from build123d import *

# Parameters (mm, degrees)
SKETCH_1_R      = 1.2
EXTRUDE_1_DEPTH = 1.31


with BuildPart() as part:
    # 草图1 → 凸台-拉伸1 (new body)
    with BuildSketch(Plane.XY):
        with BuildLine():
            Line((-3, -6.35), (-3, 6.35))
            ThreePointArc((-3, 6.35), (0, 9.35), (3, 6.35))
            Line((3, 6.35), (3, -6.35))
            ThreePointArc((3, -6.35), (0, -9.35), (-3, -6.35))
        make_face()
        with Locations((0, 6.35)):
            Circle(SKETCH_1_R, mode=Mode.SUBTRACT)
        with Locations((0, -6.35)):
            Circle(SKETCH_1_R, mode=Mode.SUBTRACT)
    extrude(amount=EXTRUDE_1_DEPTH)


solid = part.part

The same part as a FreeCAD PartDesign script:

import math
import FreeCAD as App
import Part
import Sketcher

V = App.Vector

doc = App.newDocument("Part")
body = doc.addObject("PartDesign::Body", "Body")

# Sketch on XY plane
sketch1 = body.newObject("Sketcher::SketchObject", "Sketch")
sketch1.AttachmentSupport = (doc.getObject("XY_Plane"), [""])
sketch1.MapMode = "FlatFace"
sketch1.addGeometry(Part.LineSegment(V(-3, 6.3, 0), V(-3, -6.3, 0)), False)
sketch1.addGeometry(Part.ArcOfCircle(Part.Circle(V(0, -6.3, 0), V(0, 0, 1), 3), math.radians(180), math.radians(360)), False)
sketch1.addGeometry(Part.LineSegment(V(3, -6.3, 0), V(3, 6.3, 0)), False)
sketch1.addGeometry(Part.ArcOfCircle(Part.Circle(V(0, 6.3, 0), V(0, 0, 1), 3), math.radians(0), math.radians(180)), False)
sketch1.addGeometry(Part.Circle(V(0, -6.3, 0), V(0, 0, 1), 1.2), False)
sketch1.addGeometry(Part.Circle(V(0, 6.3, 0), V(0, 0, 1), 1.2), False)
sketch1.addConstraint(Sketcher.Constraint("Tangent", 0, 2, 1, 1))
sketch1.addConstraint(Sketcher.Constraint("Tangent", 1, 2, 2, 1))
sketch1.addConstraint(Sketcher.Constraint("Tangent", 2, 2, 3, 1))
sketch1.addConstraint(Sketcher.Constraint("Tangent", 3, 2, 0, 1))
sketch1.addConstraint(Sketcher.Constraint("Vertical", 0))
sketch1.addConstraint(Sketcher.Constraint("Vertical", 2))
sketch1.addConstraint(Sketcher.Constraint("Coincident", 4, 3, 1, 3))
sketch1.addConstraint(Sketcher.Constraint("Coincident", 5, 3, 3, 3))
sketch1.addConstraint(Sketcher.Constraint("Equal", 4, 5))
sketch1.addConstraint(Sketcher.Constraint("Symmetric", 1, 3, 3, 3, -1, 1))
sketch1.addConstraint(Sketcher.Constraint("Radius", 1, 3.0))
sketch1.addConstraint(Sketcher.Constraint("Diameter", 4, 2.4))
sketch1.addConstraint(Sketcher.Constraint("DistanceY", 0, 2, 0, 1, 12.7))
pad1 = body.newObject("PartDesign::Pad", "Pad")
pad1.Profile = sketch1
pad1.Length = 1.31

doc.recompute()
